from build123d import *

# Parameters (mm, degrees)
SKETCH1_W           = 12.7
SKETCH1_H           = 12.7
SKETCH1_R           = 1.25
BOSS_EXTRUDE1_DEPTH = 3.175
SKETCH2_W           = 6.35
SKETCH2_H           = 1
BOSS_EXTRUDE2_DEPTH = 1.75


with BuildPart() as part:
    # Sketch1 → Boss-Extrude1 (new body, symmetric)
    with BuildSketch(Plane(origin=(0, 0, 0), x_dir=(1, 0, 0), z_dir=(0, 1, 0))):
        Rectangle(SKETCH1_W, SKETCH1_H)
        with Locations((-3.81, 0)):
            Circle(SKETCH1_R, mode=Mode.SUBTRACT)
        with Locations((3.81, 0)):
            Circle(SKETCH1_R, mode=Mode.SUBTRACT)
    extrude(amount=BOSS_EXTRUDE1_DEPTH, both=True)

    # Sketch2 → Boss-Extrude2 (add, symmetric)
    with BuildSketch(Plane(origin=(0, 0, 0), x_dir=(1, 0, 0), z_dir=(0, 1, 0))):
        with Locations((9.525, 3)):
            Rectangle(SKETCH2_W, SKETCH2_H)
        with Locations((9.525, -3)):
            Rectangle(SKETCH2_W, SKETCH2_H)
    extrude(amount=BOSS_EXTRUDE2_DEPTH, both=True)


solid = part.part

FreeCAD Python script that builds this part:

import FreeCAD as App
import Part
import Sketcher

V = App.Vector
Q = App.Units.Quantity


def add_polygon(sketch, points):
    """Adds a closed chain of lines whose ends are joined by coincident constraints."""
    first, n = sketch.GeometryCount, len(points)
    for a, b in zip(points, points[1:] + points[:1]):
        sketch.addGeometry(Part.LineSegment(App.Vector(*a, 0), App.Vector(*b, 0)), False)
    for i in range(n):
        sketch.addConstraint(Sketcher.Constraint("Coincident", first + i, 2, first + (i + 1) % n, 1))

doc = App.newDocument("Part")
params = doc.addObject("Spreadsheet::Sheet", "Params")
for row, (alias, value) in enumerate([
    ("sketch1_width", "0.5 in"),
    ("pad1_length", "0.25 in"),
    ("sketch2_width", "0.25 in"),
    ("pad2_length", "3.5 mm"),
], start=1):
    params.set(f"A{row}", alias)
    params.set(f"B{row}", "=" + value)
    params.setAlias(f"B{row}", alias)

body = doc.addObject("PartDesign::Body", "Body")

# Sketch on XZ plane
sketch1 = doc.addObject("Sketcher::SketchObject", "Sketch")
body.addObject(sketch1)
sketch1.AttachmentSupport = (doc.XZ_Plane, [""])
sketch1.MapMode = "FlatFace"
add_polygon(sketch1, [(-6.3, -6.3), (-6.3, 6.3), (6.3, 6.3), (6.3, -6.3)])  # lines 0-3
sketch1.addGeometry(Part.Circle(V(-3.8, 0, 0), V(0, 0, 1), 1.2), False)  # 4
sketch1.addGeometry(Part.Circle(V(3.8, 0, 0), V(0, 0, 1), 1.2), False)  # 5
sketch1.addConstraint([
    Sketcher.Constraint("Vertical", 0),
    Sketcher.Constraint("Horizontal", 1),
    Sketcher.Constraint("Vertical", 2),
    Sketcher.Constraint("Horizontal", 3),
    Sketcher.Constraint("Equal", 4, 5),
    Sketcher.Constraint("Symmetric", 4, 3, 5, 3, -1, 1),
    Sketcher.Constraint("Symmetric", 0, 2, 2, 2, -1, 1),
    Sketcher.Constraint("PointOnObject", 4, 3, -1),
    Sketcher.Constraint("Equal", 3, 0),
    Sketcher.Constraint("DistanceX", 1, 1, 1, 2, Q("0.5 in")),
    Sketcher.Constraint("DistanceX", 4, 3, 5, 3, Q("0.3 in")),
    Sketcher.Constraint("Diameter", 4, 2.5),
])
sketch1.setExpression("Constraints[13]", "Params.sketch1_width")
pad1 = doc.addObject("PartDesign::Pad", "Pad")
body.addObject(pad1)
pad1.Profile = sketch1
pad1.setExpression("Length", "Params.pad1_length")
pad1.Midplane = True

# Sketch on XZ plane
sketch2 = doc.addObject("Sketcher::SketchObject", "Sketch001")
body.addObject(sketch2)
sketch2.AttachmentSupport = (doc.XZ_Plane, [""])
sketch2.MapMode = "FlatFace"
add_polygon(sketch2, [(6.3, -3.5), (6.3, -2.5), (12.7, -2.5), (12.7, -3.5)])  # lines 0-3
add_polygon(sketch2, [(6.3, 2.5), (6.3, 3.5), (12.7, 3.5), (12.7, 2.5)])  # lines 4-7
sketch2.addConstraint([
    Sketcher.Constraint("Vertical", 0),
    Sketcher.Constraint("Horizontal", 1),
    Sketcher.Constraint("Vertical", 2),
    Sketcher.Constraint("Horizontal", 3),
    Sketcher.Constraint("Vertical", 4),
    Sketcher.Constraint("Horizontal", 5),
    Sketcher.Constraint("Vertical", 6),
    Sketcher.Constraint("Horizontal", 7),
    Sketcher.Constraint("Symmetric", 3, 2, 4, 2, -1),
    Sketcher.Constraint("Symmetric", 1, 2, 6, 2, -1),
    Sketcher.Constraint("DistanceX", 1, 1, 1, 2, Q("0.25 in")),
    Sketcher.Constraint("DistanceX", -1, 1, 1, 2, Q("0.5 in")),
    Sketcher.Constraint("DistanceY", 0, 1, 0, 2, 1.0),
    Sketcher.Constraint("DistanceY", 0, 2, -1, 1, 2.5),
])
sketch2.setExpression("Constraints[18]", "Params.sketch2_width")
pad2 = doc.addObject("PartDesign::Pad", "Pad001")
body.addObject(pad2)
pad2.Profile = sketch2
pad2.setExpression("Length", "Params.pad2_length")
pad2.Midplane = True

doc.recompute()
